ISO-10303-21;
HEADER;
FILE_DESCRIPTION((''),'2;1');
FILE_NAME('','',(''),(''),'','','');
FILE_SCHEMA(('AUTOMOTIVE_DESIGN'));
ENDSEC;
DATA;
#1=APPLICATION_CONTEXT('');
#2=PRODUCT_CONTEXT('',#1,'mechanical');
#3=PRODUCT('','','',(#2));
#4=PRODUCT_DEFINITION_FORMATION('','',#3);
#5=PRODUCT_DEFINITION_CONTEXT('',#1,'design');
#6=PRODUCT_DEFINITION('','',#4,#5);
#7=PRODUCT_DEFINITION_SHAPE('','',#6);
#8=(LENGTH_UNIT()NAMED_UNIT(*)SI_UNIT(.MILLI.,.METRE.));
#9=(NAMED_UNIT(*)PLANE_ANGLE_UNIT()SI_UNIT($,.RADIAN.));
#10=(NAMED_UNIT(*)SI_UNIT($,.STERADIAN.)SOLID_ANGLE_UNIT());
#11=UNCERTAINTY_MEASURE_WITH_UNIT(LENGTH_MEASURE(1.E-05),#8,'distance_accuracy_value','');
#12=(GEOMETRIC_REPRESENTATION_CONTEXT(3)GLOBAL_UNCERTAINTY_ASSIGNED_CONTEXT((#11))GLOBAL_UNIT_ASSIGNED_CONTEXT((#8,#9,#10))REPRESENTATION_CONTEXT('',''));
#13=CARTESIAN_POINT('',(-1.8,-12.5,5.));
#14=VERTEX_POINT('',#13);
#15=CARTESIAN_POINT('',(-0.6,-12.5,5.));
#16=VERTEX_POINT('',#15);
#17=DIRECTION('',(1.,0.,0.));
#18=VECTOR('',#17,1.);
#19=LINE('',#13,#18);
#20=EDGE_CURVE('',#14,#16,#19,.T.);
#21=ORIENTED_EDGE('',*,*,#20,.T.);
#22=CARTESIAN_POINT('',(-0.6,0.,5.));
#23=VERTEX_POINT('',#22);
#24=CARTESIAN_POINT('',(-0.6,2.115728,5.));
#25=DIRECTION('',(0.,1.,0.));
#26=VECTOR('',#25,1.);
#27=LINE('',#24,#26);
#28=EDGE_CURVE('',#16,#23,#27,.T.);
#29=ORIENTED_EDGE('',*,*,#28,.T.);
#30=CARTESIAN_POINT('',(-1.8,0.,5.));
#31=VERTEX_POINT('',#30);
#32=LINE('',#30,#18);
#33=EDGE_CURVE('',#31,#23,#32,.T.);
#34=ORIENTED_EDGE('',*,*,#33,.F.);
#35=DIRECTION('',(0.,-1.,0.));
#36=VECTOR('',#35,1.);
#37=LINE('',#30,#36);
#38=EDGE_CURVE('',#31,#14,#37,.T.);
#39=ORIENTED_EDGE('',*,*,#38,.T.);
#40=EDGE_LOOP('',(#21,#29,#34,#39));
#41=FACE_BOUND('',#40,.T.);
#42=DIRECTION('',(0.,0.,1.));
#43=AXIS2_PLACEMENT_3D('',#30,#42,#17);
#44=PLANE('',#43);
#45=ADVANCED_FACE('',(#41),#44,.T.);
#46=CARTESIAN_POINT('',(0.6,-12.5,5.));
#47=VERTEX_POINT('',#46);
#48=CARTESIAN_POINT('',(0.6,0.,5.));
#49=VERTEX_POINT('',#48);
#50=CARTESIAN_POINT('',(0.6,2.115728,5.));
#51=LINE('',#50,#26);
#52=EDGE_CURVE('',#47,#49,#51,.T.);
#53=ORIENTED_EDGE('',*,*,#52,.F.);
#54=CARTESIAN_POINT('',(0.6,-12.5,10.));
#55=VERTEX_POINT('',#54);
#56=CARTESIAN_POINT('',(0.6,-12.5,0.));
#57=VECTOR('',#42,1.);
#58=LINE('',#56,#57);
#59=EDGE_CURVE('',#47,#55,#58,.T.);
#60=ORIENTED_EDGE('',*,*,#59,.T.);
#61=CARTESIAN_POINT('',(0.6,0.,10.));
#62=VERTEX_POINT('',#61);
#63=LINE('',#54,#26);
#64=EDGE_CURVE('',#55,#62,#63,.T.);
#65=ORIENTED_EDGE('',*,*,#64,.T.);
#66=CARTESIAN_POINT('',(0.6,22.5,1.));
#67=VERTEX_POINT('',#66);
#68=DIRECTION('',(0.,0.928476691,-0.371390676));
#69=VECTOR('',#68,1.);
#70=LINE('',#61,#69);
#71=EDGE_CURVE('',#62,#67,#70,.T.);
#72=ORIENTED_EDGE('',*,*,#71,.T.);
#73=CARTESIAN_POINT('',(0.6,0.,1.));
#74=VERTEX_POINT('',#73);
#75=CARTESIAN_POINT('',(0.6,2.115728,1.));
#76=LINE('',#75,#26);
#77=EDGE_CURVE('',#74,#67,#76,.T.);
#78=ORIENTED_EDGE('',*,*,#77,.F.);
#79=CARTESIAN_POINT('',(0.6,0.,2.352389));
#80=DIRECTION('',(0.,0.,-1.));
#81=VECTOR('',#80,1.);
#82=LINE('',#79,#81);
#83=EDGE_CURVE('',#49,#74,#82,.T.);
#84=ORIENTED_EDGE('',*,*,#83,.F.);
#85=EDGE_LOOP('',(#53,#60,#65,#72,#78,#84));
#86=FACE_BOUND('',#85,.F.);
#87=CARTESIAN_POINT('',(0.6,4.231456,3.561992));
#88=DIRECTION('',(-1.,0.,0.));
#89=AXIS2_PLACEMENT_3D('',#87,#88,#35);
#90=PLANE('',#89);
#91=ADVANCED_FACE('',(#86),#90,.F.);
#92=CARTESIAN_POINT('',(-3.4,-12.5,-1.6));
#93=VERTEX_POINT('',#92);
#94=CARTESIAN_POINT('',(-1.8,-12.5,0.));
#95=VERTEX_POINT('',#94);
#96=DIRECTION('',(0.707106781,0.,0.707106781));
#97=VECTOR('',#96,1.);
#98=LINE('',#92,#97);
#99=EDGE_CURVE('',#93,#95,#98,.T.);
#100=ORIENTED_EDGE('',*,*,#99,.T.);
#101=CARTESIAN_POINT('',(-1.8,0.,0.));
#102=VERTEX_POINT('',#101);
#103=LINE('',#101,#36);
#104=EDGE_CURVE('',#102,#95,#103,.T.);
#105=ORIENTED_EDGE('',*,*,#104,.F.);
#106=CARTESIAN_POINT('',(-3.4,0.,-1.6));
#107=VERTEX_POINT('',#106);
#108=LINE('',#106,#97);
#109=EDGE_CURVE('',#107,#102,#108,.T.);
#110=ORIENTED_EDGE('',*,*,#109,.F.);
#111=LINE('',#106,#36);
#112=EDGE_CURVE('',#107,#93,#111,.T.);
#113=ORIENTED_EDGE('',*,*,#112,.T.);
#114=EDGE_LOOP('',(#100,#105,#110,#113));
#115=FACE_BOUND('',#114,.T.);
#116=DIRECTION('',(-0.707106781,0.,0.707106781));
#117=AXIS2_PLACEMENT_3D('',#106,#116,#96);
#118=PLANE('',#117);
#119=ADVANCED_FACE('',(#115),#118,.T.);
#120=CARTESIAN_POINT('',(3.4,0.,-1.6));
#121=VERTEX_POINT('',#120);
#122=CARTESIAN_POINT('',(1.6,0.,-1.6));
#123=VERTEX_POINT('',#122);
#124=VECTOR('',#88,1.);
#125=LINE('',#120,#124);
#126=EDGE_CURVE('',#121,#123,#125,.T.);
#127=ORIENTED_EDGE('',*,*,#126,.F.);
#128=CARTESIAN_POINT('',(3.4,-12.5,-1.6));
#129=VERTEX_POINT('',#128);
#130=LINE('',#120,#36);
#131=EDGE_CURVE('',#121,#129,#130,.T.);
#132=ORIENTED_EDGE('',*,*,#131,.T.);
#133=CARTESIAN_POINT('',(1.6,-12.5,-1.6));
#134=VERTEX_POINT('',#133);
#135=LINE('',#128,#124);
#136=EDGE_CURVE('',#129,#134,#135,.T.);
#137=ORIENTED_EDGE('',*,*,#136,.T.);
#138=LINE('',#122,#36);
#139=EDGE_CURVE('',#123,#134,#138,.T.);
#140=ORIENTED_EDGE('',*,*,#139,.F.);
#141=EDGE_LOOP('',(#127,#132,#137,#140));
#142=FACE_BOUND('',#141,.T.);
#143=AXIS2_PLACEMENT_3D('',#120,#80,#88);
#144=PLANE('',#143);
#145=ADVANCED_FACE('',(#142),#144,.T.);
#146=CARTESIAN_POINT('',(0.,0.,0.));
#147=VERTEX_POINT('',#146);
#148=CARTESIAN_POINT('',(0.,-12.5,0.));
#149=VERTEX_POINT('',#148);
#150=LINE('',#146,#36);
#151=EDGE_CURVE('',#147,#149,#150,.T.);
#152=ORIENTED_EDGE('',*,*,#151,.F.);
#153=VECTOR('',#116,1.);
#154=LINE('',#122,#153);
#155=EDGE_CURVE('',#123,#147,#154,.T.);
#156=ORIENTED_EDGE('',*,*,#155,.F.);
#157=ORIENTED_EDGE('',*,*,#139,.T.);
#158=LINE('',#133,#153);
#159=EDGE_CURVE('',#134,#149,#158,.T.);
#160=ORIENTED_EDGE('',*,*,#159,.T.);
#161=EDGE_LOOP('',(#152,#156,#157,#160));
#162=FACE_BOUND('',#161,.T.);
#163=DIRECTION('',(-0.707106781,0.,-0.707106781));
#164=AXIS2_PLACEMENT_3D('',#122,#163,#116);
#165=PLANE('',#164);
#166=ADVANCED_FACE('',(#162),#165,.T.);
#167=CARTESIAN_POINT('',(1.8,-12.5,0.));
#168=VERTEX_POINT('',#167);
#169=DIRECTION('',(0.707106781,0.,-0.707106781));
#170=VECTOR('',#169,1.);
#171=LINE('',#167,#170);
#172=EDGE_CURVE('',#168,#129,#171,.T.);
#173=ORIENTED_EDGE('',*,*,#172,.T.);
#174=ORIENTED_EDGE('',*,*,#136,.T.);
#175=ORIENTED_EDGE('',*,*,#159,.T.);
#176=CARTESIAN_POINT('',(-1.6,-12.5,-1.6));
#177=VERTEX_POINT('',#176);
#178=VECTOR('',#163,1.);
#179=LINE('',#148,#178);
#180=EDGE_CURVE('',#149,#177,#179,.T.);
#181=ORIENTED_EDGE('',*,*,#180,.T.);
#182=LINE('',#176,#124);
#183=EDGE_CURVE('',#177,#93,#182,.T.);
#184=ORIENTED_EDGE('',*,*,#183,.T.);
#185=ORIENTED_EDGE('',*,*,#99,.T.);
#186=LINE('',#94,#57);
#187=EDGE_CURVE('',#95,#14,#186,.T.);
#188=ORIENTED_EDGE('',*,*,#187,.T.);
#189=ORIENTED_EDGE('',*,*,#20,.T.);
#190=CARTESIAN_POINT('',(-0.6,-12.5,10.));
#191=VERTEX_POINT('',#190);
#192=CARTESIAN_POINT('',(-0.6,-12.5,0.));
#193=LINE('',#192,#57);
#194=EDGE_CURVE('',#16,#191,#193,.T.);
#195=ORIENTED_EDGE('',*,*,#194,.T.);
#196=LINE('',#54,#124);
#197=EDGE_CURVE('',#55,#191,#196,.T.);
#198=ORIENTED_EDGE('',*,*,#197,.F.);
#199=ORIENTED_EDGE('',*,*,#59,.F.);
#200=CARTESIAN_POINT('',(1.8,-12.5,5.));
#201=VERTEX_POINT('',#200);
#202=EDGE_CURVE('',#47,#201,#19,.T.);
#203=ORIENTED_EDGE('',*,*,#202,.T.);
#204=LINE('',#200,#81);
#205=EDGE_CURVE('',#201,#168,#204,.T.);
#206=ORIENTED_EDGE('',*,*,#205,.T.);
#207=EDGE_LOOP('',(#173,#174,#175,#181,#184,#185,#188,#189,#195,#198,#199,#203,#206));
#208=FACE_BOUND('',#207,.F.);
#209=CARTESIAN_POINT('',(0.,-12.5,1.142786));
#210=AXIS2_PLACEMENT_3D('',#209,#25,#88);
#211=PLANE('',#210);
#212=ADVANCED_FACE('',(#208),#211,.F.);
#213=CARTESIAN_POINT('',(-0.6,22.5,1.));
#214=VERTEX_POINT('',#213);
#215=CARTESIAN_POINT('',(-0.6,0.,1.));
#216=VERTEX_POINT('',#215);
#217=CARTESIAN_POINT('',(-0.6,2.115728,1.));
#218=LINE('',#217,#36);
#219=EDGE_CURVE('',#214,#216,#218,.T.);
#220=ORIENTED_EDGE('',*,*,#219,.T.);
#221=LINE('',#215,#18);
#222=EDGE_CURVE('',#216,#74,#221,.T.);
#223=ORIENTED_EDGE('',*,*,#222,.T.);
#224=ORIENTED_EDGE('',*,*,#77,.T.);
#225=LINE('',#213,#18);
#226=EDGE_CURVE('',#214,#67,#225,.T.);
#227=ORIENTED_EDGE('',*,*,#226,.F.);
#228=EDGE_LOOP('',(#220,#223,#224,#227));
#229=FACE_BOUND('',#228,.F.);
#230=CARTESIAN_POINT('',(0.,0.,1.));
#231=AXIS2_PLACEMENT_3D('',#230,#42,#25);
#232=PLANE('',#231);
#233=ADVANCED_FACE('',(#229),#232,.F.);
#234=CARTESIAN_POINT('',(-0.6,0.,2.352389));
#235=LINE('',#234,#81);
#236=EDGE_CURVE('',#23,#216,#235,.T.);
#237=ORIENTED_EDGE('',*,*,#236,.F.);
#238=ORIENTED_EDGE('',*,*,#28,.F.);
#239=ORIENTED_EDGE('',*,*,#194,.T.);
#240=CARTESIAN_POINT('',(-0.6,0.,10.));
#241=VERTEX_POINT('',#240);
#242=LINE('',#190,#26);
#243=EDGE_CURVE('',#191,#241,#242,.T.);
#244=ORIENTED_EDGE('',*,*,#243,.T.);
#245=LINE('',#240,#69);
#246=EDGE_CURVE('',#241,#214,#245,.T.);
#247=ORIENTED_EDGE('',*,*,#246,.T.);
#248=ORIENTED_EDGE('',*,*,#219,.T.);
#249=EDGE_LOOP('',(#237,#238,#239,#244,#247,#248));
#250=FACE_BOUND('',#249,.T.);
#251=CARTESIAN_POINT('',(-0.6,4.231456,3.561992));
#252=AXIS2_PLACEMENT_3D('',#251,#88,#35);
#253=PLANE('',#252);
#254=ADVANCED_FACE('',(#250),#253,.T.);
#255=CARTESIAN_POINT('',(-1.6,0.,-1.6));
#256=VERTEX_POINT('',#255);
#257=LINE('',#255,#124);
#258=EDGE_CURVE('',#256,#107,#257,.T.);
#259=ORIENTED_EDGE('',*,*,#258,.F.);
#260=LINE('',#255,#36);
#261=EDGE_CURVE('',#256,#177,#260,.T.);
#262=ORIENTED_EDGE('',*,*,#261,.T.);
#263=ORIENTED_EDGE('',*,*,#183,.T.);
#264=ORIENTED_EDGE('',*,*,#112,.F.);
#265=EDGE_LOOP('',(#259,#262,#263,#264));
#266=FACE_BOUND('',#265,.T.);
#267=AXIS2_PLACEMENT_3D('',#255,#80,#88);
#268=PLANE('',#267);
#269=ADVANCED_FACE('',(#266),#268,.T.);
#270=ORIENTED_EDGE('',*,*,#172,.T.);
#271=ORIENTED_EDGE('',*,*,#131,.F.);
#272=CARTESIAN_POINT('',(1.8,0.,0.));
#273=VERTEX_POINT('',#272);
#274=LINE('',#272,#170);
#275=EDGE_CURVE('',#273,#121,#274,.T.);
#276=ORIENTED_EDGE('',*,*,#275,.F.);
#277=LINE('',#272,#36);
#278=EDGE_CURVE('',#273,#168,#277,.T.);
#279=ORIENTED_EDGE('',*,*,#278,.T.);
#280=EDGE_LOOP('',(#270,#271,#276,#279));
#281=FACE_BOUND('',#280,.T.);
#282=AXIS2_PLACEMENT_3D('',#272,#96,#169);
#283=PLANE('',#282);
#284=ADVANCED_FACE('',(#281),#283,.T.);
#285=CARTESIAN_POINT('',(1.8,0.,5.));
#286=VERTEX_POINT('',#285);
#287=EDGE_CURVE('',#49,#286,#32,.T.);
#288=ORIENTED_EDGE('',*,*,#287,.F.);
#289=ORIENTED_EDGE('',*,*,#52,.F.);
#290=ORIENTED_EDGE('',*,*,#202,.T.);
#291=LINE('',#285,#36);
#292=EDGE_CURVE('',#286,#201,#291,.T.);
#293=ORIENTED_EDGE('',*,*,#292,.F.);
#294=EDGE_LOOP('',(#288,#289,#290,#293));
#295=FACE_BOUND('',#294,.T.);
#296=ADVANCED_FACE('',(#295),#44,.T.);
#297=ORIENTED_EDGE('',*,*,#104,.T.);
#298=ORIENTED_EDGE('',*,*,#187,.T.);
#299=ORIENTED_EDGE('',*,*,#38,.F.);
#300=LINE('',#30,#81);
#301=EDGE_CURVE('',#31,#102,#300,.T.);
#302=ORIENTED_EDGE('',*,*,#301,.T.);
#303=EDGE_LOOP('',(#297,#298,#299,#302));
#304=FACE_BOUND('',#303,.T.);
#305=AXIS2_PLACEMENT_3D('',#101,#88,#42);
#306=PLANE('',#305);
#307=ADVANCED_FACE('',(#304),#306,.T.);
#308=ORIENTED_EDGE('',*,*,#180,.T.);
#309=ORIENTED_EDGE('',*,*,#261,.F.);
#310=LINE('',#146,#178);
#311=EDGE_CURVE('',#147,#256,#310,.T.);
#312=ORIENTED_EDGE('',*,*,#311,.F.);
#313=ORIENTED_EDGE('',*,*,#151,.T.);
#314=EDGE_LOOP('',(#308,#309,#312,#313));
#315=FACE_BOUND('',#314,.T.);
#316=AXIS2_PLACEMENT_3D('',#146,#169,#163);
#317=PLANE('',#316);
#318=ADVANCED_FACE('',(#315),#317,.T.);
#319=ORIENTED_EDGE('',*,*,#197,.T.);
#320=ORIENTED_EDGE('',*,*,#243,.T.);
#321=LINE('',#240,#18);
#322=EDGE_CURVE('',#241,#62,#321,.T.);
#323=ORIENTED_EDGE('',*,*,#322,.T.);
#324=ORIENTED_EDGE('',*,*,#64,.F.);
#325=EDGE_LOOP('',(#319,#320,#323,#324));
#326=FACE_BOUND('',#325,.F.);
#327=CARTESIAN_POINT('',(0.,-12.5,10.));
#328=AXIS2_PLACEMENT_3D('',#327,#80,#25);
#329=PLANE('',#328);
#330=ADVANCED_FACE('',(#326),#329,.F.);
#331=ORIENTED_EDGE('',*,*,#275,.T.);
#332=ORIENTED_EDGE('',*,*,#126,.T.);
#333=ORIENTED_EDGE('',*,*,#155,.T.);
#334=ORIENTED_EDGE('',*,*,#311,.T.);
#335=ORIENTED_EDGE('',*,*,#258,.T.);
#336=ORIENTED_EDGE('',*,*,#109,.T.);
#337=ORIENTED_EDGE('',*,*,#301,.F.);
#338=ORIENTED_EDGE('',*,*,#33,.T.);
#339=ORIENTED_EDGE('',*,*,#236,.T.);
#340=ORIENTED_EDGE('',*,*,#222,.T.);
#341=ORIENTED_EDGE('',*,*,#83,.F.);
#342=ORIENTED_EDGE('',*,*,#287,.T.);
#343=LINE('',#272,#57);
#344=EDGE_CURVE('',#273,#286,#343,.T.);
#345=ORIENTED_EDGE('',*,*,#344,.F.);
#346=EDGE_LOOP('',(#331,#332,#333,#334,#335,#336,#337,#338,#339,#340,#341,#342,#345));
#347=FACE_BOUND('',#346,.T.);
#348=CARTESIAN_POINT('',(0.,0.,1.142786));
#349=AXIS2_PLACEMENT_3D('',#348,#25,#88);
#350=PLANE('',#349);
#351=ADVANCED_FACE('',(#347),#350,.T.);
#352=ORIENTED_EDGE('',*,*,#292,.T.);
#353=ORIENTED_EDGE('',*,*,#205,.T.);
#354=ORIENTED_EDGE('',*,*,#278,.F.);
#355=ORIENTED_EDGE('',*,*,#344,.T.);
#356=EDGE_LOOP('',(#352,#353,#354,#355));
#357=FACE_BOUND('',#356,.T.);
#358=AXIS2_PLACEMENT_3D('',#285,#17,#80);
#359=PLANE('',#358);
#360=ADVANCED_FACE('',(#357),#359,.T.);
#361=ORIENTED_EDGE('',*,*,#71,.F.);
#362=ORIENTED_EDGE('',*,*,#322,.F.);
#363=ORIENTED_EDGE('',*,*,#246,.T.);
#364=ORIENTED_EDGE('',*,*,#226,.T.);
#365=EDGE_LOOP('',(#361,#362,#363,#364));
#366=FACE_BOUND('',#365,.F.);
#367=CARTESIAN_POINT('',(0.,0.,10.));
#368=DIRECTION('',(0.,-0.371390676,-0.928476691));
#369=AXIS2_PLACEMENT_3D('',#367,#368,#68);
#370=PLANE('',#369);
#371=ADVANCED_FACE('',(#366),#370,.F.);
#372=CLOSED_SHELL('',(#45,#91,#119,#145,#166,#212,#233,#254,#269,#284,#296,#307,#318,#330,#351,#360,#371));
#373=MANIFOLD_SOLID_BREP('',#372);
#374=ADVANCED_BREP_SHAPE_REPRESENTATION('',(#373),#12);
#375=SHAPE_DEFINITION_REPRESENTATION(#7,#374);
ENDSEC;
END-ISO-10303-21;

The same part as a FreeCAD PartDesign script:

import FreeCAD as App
import Part
import Sketcher

V = App.Vector


def add_polygon(sketch, points):
    """Adds a closed chain of lines whose ends are joined by coincident constraints."""
    first, n = sketch.GeometryCount, len(points)
    for a, b in zip(points, points[1:] + points[:1]):
        sketch.addGeometry(Part.LineSegment(App.Vector(*a, 0), App.Vector(*b, 0)), False)
    for i in range(n):
        sketch.addConstraint(Sketcher.Constraint("Coincident", first + i, 2, first + (i + 1) % n, 1))

doc = App.newDocument("Part")
body = doc.addObject("PartDesign::Body", "Body")

sketch1 = body.newObject("Sketcher::SketchObject", "Sketch")
sketch1.AttachmentSupport = (doc.getObject("YZ_Plane"), [""])
sketch1.MapMode = "FlatFace"
add_polygon(sketch1, [(-12.5, 0), (25, 0), (0, 10), (-12.5, 10)])
sketch1.addConstraint([
    Sketcher.Constraint("Horizontal", 0),
    Sketcher.Constraint("Horizontal", 2),
    Sketcher.Constraint("Vertical", 3),
    Sketcher.Constraint("PointOnObject", 0, 2, -1),
    Sketcher.Constraint("PointOnObject", 1, 2, -2),
    Sketcher.Constraint("DistanceY", 3, 2, 3, 1, 10.0),
    Sketcher.Constraint("DistanceX", 0, 1, 0, 2, 37.5),
    Sketcher.Constraint("DistanceX", 2, 2, 2, 1, 12.5),
])
pad1 = body.newObject("PartDesign::Pad", "Pad")
pad1.Profile = sketch1
pad1.Length = 1.2
pad1.Midplane = True

sketch2 = body.newObject("Sketcher::SketchObject", "Sketch001")
sketch2.AttachmentSupport = (doc.getObject("XZ_Plane"), [""])
sketch2.MapMode = "FlatFace"
add_polygon(sketch2, [(3.4, -1.6), (1.8, 0), (1.8, 5), (-1.8, 5), (-1.8, 0), (-3.4, -1.6), (-1.6, -1.6), (0, 0), (1.6, -1.6)])
sketch2.addConstraint([
    Sketcher.Constraint("Vertical", 1),
    Sketcher.Constraint("Horizontal", 2),
    Sketcher.Constraint("Vertical", 3),
    Sketcher.Constraint("Horizontal", 5),
    Sketcher.Constraint("Horizontal", 8),
    Sketcher.Constraint("Coincident", 6, 2, -1, 1),
    Sketcher.Constraint("Symmetric", 0, 2, 3, 2, -1, 1),
    Sketcher.Constraint("Symmetric", 5, 2, 7, 2, -2),
    Sketcher.Constraint("PointOnObject", 0, 2, -1),
    Sketcher.Constraint("Perpendicular", 0, 4),
    Sketcher.Constraint("Parallel", 4, 6),
    Sketcher.Constraint("Perpendicular", 6, 7),
    Sketcher.Constraint("DistanceY", 1, 1, 1, 2, 5.0),
    Sketcher.Constraint("DistanceX", 2, 2, 2, 1, 3.6),
    Sketcher.Constraint("DistanceX", 4, 2, 7, 2, 5.0),
])
pad2 = body.newObject("PartDesign::Pad", "Pad001")
pad2.Profile = sketch2
pad2.Length = 12.5

sketch3 = body.newObject("Sketcher::SketchObject", "Sketch002")
sketch3.AttachmentSupport = (doc.getObject("YZ_Plane"), [""])
sketch3.MapMode = "FlatFace"
add_polygon(sketch3, [(0, 1), (0, 0), (30, 0), (30, 1)])
sketch3.addConstraint([
    Sketcher.Constraint("Vertical", 0),
    Sketcher.Constraint("Horizontal", 1),
    Sketcher.Constraint("Vertical", 2),
    Sketcher.Constraint("Horizontal", 3),
    Sketcher.Constraint("Coincident", 0, 2, -1, 1),
    Sketcher.Constraint("DistanceX", 1, 1, 1, 2, 30.0),
    Sketcher.Constraint("DistanceY", 0, 2, 0, 1, 1.0),
])
pocket1 = body.newObject("PartDesign::Pocket", "Pocket")
pocket1.Profile = sketch3
pocket1.Type = "ThroughAll"
pocket1.Midplane = True

doc.recompute()
